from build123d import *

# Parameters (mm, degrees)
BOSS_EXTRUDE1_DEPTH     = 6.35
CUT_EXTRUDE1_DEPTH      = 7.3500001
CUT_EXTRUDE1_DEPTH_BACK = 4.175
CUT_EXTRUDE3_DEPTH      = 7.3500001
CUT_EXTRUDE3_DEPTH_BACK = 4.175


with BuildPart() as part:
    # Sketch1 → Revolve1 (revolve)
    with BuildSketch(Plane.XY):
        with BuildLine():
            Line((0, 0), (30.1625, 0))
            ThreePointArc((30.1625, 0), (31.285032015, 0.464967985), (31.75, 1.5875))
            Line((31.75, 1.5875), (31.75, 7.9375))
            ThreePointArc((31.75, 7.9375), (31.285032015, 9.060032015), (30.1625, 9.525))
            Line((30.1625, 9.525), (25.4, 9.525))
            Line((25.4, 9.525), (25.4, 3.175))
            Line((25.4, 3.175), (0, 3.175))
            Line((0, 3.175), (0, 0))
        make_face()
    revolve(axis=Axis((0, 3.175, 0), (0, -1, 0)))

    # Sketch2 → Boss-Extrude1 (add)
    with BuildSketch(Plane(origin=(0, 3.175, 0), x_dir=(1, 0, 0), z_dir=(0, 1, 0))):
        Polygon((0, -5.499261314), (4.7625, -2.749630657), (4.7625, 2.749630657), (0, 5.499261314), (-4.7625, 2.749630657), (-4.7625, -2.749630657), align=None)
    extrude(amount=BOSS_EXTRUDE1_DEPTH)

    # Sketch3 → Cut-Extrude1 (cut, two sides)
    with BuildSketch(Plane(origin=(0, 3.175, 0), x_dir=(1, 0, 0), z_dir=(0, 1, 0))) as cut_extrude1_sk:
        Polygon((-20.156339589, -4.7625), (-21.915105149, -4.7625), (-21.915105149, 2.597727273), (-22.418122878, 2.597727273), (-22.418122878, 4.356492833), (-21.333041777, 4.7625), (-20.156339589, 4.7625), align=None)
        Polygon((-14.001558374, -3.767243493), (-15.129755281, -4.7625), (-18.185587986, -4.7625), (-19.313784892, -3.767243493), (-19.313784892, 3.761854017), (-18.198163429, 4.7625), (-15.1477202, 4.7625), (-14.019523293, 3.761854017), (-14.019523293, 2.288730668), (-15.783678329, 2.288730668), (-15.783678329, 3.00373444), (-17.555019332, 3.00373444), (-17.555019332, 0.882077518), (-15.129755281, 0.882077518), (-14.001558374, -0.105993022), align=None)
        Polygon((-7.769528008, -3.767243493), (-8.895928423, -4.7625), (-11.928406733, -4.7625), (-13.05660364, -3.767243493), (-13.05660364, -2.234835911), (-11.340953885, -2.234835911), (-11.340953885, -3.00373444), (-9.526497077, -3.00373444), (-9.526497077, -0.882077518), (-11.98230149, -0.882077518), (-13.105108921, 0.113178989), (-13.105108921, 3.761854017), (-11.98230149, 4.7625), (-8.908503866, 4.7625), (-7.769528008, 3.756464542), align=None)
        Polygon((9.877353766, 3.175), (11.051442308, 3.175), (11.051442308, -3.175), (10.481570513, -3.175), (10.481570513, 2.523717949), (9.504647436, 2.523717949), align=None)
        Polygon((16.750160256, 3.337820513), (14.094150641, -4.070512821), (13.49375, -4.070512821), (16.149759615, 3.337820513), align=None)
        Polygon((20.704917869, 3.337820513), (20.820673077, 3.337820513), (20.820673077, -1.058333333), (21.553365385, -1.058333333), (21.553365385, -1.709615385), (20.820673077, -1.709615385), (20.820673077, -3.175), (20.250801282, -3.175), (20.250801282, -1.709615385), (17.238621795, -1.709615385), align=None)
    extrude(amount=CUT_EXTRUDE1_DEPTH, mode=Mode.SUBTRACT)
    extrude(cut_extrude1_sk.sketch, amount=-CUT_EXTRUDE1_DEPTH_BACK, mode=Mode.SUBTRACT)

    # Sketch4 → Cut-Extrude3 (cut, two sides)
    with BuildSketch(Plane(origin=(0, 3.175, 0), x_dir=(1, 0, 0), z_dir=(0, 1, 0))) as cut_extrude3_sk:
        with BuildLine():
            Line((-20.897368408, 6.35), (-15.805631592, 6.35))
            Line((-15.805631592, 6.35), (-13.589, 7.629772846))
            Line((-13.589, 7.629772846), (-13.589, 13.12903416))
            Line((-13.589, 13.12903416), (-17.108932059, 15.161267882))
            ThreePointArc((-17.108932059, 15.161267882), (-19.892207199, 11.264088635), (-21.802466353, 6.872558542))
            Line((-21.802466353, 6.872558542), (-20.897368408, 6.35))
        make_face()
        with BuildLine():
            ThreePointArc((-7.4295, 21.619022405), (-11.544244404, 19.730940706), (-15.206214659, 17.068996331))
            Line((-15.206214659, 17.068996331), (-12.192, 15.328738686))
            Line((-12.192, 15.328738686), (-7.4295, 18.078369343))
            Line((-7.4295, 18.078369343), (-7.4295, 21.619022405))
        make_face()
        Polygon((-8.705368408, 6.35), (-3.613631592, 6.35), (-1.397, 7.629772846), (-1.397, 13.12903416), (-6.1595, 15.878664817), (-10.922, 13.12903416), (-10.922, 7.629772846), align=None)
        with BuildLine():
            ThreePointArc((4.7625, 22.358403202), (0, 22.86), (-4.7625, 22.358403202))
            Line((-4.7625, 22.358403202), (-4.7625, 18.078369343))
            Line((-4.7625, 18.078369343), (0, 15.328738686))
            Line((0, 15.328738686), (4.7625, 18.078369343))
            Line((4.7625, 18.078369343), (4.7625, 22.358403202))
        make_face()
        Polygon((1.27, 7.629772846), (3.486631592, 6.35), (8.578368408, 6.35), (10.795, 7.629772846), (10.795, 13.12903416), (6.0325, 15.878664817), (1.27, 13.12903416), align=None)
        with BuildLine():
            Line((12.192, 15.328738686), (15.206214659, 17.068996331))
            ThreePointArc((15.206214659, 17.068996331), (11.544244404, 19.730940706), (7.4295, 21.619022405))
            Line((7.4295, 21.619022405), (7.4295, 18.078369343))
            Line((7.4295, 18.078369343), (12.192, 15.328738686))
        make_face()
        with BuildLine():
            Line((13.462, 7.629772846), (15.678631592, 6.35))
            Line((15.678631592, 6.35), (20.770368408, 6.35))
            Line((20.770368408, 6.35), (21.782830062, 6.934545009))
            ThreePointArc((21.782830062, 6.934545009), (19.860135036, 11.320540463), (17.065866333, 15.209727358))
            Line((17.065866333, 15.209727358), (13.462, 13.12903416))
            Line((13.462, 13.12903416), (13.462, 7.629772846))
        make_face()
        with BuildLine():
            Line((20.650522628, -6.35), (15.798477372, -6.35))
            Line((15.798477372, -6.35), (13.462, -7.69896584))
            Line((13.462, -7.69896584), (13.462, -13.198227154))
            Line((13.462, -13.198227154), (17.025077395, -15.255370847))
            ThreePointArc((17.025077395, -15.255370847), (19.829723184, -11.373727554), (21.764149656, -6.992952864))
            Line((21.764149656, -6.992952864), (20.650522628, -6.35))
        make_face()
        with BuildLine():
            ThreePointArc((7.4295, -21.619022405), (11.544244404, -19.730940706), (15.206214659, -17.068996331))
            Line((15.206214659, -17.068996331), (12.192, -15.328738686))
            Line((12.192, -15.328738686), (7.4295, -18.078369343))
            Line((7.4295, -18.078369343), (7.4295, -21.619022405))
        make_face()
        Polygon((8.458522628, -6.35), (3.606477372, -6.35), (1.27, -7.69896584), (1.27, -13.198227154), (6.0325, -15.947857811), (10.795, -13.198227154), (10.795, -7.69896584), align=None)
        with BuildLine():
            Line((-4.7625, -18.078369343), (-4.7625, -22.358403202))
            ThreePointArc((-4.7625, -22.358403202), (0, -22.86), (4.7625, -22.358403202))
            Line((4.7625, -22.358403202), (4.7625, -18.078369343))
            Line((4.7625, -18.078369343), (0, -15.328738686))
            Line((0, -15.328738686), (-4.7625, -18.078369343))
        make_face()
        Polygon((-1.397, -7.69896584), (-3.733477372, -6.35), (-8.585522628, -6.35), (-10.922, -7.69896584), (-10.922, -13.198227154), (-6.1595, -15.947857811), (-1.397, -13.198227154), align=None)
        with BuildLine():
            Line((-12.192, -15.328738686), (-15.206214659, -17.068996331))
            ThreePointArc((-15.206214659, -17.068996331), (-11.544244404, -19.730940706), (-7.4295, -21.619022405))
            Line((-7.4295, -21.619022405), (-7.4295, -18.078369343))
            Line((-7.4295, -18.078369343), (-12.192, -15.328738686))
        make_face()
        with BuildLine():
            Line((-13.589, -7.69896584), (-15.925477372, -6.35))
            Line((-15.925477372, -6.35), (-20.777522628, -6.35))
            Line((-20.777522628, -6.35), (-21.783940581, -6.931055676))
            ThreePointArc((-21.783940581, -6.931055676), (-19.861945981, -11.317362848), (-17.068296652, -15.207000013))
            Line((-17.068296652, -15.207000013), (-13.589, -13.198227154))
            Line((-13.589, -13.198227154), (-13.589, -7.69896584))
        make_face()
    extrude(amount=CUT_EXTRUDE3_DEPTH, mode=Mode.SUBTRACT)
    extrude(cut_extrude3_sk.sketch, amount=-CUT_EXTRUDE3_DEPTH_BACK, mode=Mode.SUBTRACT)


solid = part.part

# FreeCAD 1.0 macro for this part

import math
import FreeCAD as App
import Part
import Sketcher
Q = App.Units.Quantity

doc = App.newDocument("Part")
body = doc.addObject("PartDesign::Body", "Body")

# Sketch on XY plane
sketch1 = body.newObject("Sketcher::SketchObject", "Sketch")
sketch1.AttachmentSupport = (doc.getObject("XY_Plane"), [""])
sketch1.MapMode = "FlatFace"
sketch1.addGeometry(Part.LineSegment(App.Vector(0, 0, 0), App.Vector(30.2, 0, 0)), False)
sketch1.addGeometry(Part.ArcOfCircle(Part.Circle(App.Vector(30.2, 1.6, 0), App.Vector(0, 0, 1), 1.6), math.radians(-90), math.radians(0)), False)
sketch1.addGeometry(Part.LineSegment(App.Vector(31.8, 1.6, 0), App.Vector(31.8, 7.9, 0)), False)
sketch1.addGeometry(Part.ArcOfCircle(Part.Circle(App.Vector(30.2, 7.9, 0), App.Vector(0, 0, 1), 1.6), math.radians(0), math.radians(90)), False)
sketch1.addGeometry(Part.LineSegment(App.Vector(30.2, 9.5, 0), App.Vector(25.4, 9.5, 0)), False)
sketch1.addGeometry(Part.LineSegment(App.Vector(25.4, 9.5, 0), App.Vector(25.4, 3.2, 0)), False)
sketch1.addGeometry(Part.LineSegment(App.Vector(25.4, 3.2, 0), App.Vector(0, 3.2, 0)), False)
sketch1.addGeometry(Part.LineSegment(App.Vector(0, 3.2, 0), App.Vector(0, 0, 0)), False)
sketch1.addConstraint(Sketcher.Constraint("Tangent", 0, 2, 1, 1))
sketch1.addConstraint(Sketcher.Constraint("Tangent", 1, 2, 2, 1))
sketch1.addConstraint(Sketcher.Constraint("Tangent", 2, 2, 3, 1))
sketch1.addConstraint(Sketcher.Constraint("Tangent", 3, 2, 4, 1))
sketch1.addConstraint(Sketcher.Constraint("Coincident", 4, 2, 5, 1))
sketch1.addConstraint(Sketcher.Constraint("Coincident", 5, 2, 6, 1))
sketch1.addConstraint(Sketcher.Constraint("Coincident", 6, 2, 7, 1))
sketch1.addConstraint(Sketcher.Constraint("Coincident", 7, 2, 0, 1))
sketch1.addConstraint(Sketcher.Constraint("Horizontal", 0))
sketch1.addConstraint(Sketcher.Constraint("Vertical", 2))
sketch1.addConstraint(Sketcher.Constraint("Horizontal", 4))
sketch1.addConstraint(Sketcher.Constraint("Vertical", 5))
sketch1.addConstraint(Sketcher.Constraint("Horizontal", 6))
sketch1.addConstraint(Sketcher.Constraint("Vertical", 7))
sketch1.addConstraint(Sketcher.Constraint("Coincident", 7, 2, -1, 1))
sketch1.addConstraint(Sketcher.Constraint("Equal", 1, 3))
sketch1.addConstraint(Sketcher.Constraint("Equal", 2, 5))
sketch1.addConstraint(Sketcher.Constraint("DistanceX", 6, 2, 6, 1, Q("1 in")))
sketch1.addConstraint(Sketcher.Constraint("Radius", 1, Q("0.0625 in")))
sketch1.addConstraint(Sketcher.Constraint("DistanceY", 2, 1, 2, 2, Q("0.25 in")))
sketch1.addConstraint(Sketcher.Constraint("DistanceX", 0, 1, 0, 2, Q("1.1875 in")))
revolution = body.newObject("PartDesign::Revolution", "Revolution")
revolution.Profile = sketch1
revolution.ReferenceAxis = (sketch1, ["V_Axis"])
revolution.Angle = 360

# Sketch on XZ plane
sketch2 = body.newObject("Sketcher::SketchObject", "Sketch001")
sketch2.AttachmentSupport = (doc.getObject("XZ_Plane"), [""])
sketch2.MapMode = "FlatFace"
sketch2.AttachmentOffset = App.Placement(App.Vector(0, 0, -0.125 * 25.4), App.Rotation())
sketch2.addGeometry(Part.LineSegment(App.Vector(0, 5, 0), App.Vector(5, 3, 0)), False)
sketch2.addGeometry(Part.LineSegment(App.Vector(5, 3, 0), App.Vector(5, -3, 0)), False)
sketch2.addGeometry(Part.LineSegment(App.Vector(5, -3, 0), App.Vector(0, -5, 0)), False)
sketch2.addGeometry(Part.LineSegment(App.Vector(0, -5, 0), App.Vector(-5, -3, 0)), False)
sketch2.addGeometry(Part.LineSegment(App.Vector(-5, -3, 0), App.Vector(-5, 3, 0)), False)
sketch2.addGeometry(Part.LineSegment(App.Vector(-5, 3, 0), App.Vector(0, 5, 0)), False)
sketch2.addConstraint(Sketcher.Constraint("Coincident", 0, 2, 1, 1))
sketch2.addConstraint(Sketcher.Constraint("Coincident", 1, 2, 2, 1))
sketch2.addConstraint(Sketcher.Constraint("Coincident", 2, 2, 3, 1))
sketch2.addConstraint(Sketcher.Constraint("Coincident", 3, 2, 4, 1))
sketch2.addConstraint(Sketcher.Constraint("Coincident", 4, 2, 5, 1))
sketch2.addConstraint(Sketcher.Constraint("Coincident", 5, 2, 0, 1))
sketch2.addConstraint(Sketcher.Constraint("Vertical", 1))
sketch2.addConstraint(Sketcher.Constraint("Vertical", 4))
sketch2.addConstraint(Sketcher.Constraint("Symmetric", 0, 2, 3, 2, -1, 1))
sketch2.addConstraint(Sketcher.Constraint("Symmetric", 2, 2, 5, 2, -1, 1))
sketch2.addConstraint(Sketcher.Constraint("PointOnObject", 2, 2, -2))
sketch2.addConstraint(Sketcher.Constraint("Parallel", 2, 5))
sketch2.addConstraint(Sketcher.Constraint("Horizontal", 1, 2, 3, 2))
sketch2.addConstraint(Sketcher.Constraint("Angle", 0, Q("-30 deg")))
sketch2.addConstraint(Sketcher.Constraint("DistanceX", -1, 1, 0, 2, Q("0.1875 in")))
sketch2.addConstraint(Sketcher.Constraint("DistanceY", 1, 2, 1, 1, Q("5.499261 mm")))
pad1 = body.newObject("PartDesign::Pad", "Pad")
pad1.Profile = sketch2
pad1.Length = Q("0.25 in")
pad1.Reversed = True

# Sketch on XZ plane
sketch3 = body.newObject("Sketcher::SketchObject", "Sketch002")
sketch3.AttachmentSupport = (doc.getObject("XZ_Plane"), [""])
sketch3.MapMode = "FlatFace"
sketch3.AttachmentOffset = App.Placement(App.Vector(0, 0, -0.125 * 25.4), App.Rotation())
sketch3.addGeometry(Part.LineSegment(App.Vector(-21.92, 4.76, 0), App.Vector(-20.16, 4.76, 0)), False)
sketch3.addGeometry(Part.LineSegment(App.Vector(-20.16, 4.76, 0), App.Vector(-20.16, -4.76, 0)), False)
sketch3.addGeometry(Part.LineSegment(App.Vector(-20.16, -4.76, 0), App.Vector(-21.33, -4.76, 0)), False)
sketch3.addGeometry(Part.LineSegment(App.Vector(-21.33, -4.76, 0), App.Vector(-22.42, -4.36, 0)), False)
sketch3.addGeometry(Part.LineSegment(App.Vector(-22.42, -4.36, 0), App.Vector(-22.42, -2.6, 0)), False)
sketch3.addGeometry(Part.LineSegment(App.Vector(-22.42, -2.6, 0), App.Vector(-21.92, -2.6, 0)), False)
sketch3.addGeometry(Part.LineSegment(App.Vector(-21.92, -2.6, 0), App.Vector(-21.92, 4.76, 0)), False)
sketch3.addGeometry(Part.LineSegment(App.Vector(-15.13, 4.76, 0), App.Vector(-14, 3.77, 0)), False)
sketch3.addGeometry(Part.LineSegment(App.Vector(-14, 3.77, 0), App.Vector(-14, 0.11, 0)), False)
sketch3.addGeometry(Part.LineSegment(App.Vector(-14, 0.11, 0), App.Vector(-15.13, -0.88, 0)), False)
sketch3.addGeometry(Part.LineSegment(App.Vector(-15.13, -0.88, 0), App.Vector(-17.56, -0.88, 0)), False)
sketch3.addGeometry(Part.LineSegment(App.Vector(-17.56, -0.88, 0), App.Vector(-17.56, -3, 0)), False)
sketch3.addGeometry(Part.LineSegment(App.Vector(-17.56, -3, 0), App.Vector(-15.78, -3, 0)), False)
sketch3.addGeometry(Part.LineSegment(App.Vector(-15.78, -3, 0), App.Vector(-15.78, -2.29, 0)), False)
sketch3.addGeometry(Part.LineSegment(App.Vector(-15.78, -2.29, 0), App.Vector(-14.02, -2.29, 0)), False)
sketch3.addGeometry(Part.LineSegment(App.Vector(-14.02, -2.29, 0), App.Vector(-14.02, -3.76, 0)), False)
sketch3.addGeometry(Part.LineSegment(App.Vector(-14.02, -3.76, 0), App.Vector(-15.15, -4.76, 0)), False)
sketch3.addGeometry(Part.LineSegment(App.Vector(-15.15, -4.76, 0), App.Vector(-18.2, -4.76, 0)), False)
sketch3.addGeometry(Part.LineSegment(App.Vector(-18.2, -4.76, 0), App.Vector(-19.31, -3.76, 0)), False)
sketch3.addGeometry(Part.LineSegment(App.Vector(-19.31, -3.76, 0), App.Vector(-19.31, 3.77, 0)), False)
sketch3.addGeometry(Part.LineSegment(App.Vector(-19.31, 3.77, 0), App.Vector(-18.19, 4.76, 0)), False)
sketch3.addGeometry(Part.LineSegment(App.Vector(-18.19, 4.76, 0), App.Vector(-15.13, 4.76, 0)), False)
sketch3.addGeometry(Part.LineSegment(App.Vector(-8.9, 4.76, 0), App.Vector(-7.77, 3.77, 0)), False)
sketch3.addGeometry(Part.LineSegment(App.Vector(-7.77, 3.77, 0), App.Vector(-7.77, -3.76, 0)), False)
sketch3.addGeometry(Part.LineSegment(App.Vector(-7.77, -3.76, 0), App.Vector(-8.91, -4.76, 0)), False)
sketch3.addGeometry(Part.LineSegment(App.Vector(-8.91, -4.76, 0), App.Vector(-11.98, -4.76, 0)), False)
sketch3.addGeometry(Part.LineSegment(App.Vector(-11.98, -4.76, 0), App.Vector(-13.11, -3.76, 0)), False)
sketch3.addGeometry(Part.LineSegment(App.Vector(-13.11, -3.76, 0), App.Vector(-13.11, -0.11, 0)), False)
sketch3.addGeometry(Part.LineSegment(App.Vector(-13.11, -0.11, 0), App.Vector(-11.98, 0.88, 0)), False)
sketch3.addGeometry(Part.LineSegment(App.Vector(-11.98, 0.88, 0), App.Vector(-9.53, 0.88, 0)), False)
sketch3.addGeometry(Part.LineSegment(App.Vector(-9.53, 0.88, 0), App.Vector(-9.53, 3, 0)), False)
sketch3.addGeometry(Part.LineSegment(App.Vector(-9.53, 3, 0), App.Vector(-11.34, 3, 0)), False)
sketch3.addGeometry(Part.LineSegment(App.Vector(-11.34, 3, 0), App.Vector(-11.34, 2.23, 0)), False)
sketch3.addGeometry(Part.LineSegment(App.Vector(-11.34, 2.23, 0), App.Vector(-13.06, 2.23, 0)), False)
sketch3.addGeometry(Part.LineSegment(App.Vector(-13.06, 2.23, 0), App.Vector(-13.06, 3.77, 0)), False)
sketch3.addGeometry(Part.LineSegment(App.Vector(-13.06, 3.77, 0), App.Vector(-11.93, 4.76, 0)), False)
sketch3.addGeometry(Part.LineSegment(App.Vector(-11.93, 4.76, 0), App.Vector(-8.9, 4.76, 0)), False)
sketch3.addGeometry(Part.LineSegment(App.Vector(11.05, -3.17, 0), App.Vector(9.88, -3.17, 0)), False)
sketch3.addGeometry(Part.LineSegment(App.Vector(9.88, -3.17, 0), App.Vector(9.5, -2.52, 0)), False)
sketch3.addGeometry(Part.LineSegment(App.Vector(9.5, -2.52, 0), App.Vector(10.48, -2.52, 0)), False)
sketch3.addGeometry(Part.LineSegment(App.Vector(10.48, -2.52, 0), App.Vector(10.48, 3.17, 0)), False)
sketch3.addGeometry(Part.LineSegment(App.Vector(10.48, 3.17, 0), App.Vector(11.05, 3.17, 0)), False)
sketch3.addGeometry(Part.LineSegment(App.Vector(11.05, 3.17, 0), App.Vector(11.05, -3.17, 0)), False)
sketch3.addGeometry(Part.LineSegment(App.Vector(14.09, 4.07, 0), App.Vector(16.75, -3.34, 0)), False)
sketch3.addGeometry(Part.LineSegment(App.Vector(16.75, -3.34, 0), App.Vector(16.15, -3.34, 0)), False)
sketch3.addGeometry(Part.LineSegment(App.Vector(16.15, -3.34, 0), App.Vector(13.49, 4.07, 0)), False)
sketch3.addGeometry(Part.LineSegment(App.Vector(13.49, 4.07, 0), App.Vector(14.09, 4.07, 0)), False)
sketch3.addGeometry(Part.LineSegment(App.Vector(20.82, -3.34, 0), App.Vector(20.7, -3.34, 0)), False)
sketch3.addGeometry(Part.LineSegment(App.Vector(20.7, -3.34, 0), App.Vector(17.24, 1.71, 0)), False)
sketch3.addGeometry(Part.LineSegment(App.Vector(17.24, 1.71, 0), App.Vector(20.25, 1.71, 0)), False)
sketch3.addGeometry(Part.LineSegment(App.Vector(20.25, 1.71, 0), App.Vector(20.25, 3.17, 0)), False)
sketch3.addGeometry(Part.LineSegment(App.Vector(20.25, 3.17, 0), App.Vector(20.82, 3.17, 0)), False)
sketch3.addGeometry(Part.LineSegment(App.Vector(20.82, 3.17, 0), App.Vector(20.82, 1.71, 0)), False)
sketch3.addGeometry(Part.LineSegment(App.Vector(20.82, 1.71, 0), App.Vector(21.55, 1.71, 0)), False)
sketch3.addGeometry(Part.LineSegment(App.Vector(21.55, 1.71, 0), App.Vector(21.55, 1.06, 0)), False)
sketch3.addGeometry(Part.LineSegment(App.Vector(21.55, 1.06, 0), App.Vector(20.82, 1.06, 0)), False)
sketch3.addGeometry(Part.LineSegment(App.Vector(20.82, 1.06, 0), App.Vector(20.82, -3.34, 0)), False)
sketch3.addConstraint(Sketcher.Constraint("Coincident", 0, 2, 1, 1))
sketch3.addConstraint(Sketcher.Constraint("Coincident", 1, 2, 2, 1))
sketch3.addConstraint(Sketcher.Constraint("Coincident", 2, 2, 3, 1))
sketch3.addConstraint(Sketcher.Constraint("Coincident", 3, 2, 4, 1))
sketch3.addConstraint(Sketcher.Constraint("Coincident", 4, 2, 5, 1))
sketch3.addConstraint(Sketcher.Constraint("Coincident", 5, 2, 6, 1))
sketch3.addConstraint(Sketcher.Constraint("Coincident", 6, 2, 0, 1))
sketch3.addConstraint(Sketcher.Constraint("Coincident", 7, 2, 8, 1))
sketch3.addConstraint(Sketcher.Constraint("Coincident", 8, 2, 9, 1))
sketch3.addConstraint(Sketcher.Constraint("Coincident", 9, 2, 10, 1))
sketch3.addConstraint(Sketcher.Constraint("Coincident", 10, 2, 11, 1))
sketch3.addConstraint(Sketcher.Constraint("Coincident", 11, 2, 12, 1))
sketch3.addConstraint(Sketcher.Constraint("Coincident", 12, 2, 13, 1))
sketch3.addConstraint(Sketcher.Constraint("Coincident", 13, 2, 14, 1))
sketch3.addConstraint(Sketcher.Constraint("Coincident", 14, 2, 15, 1))
sketch3.addConstraint(Sketcher.Constraint("Coincident", 15, 2, 16, 1))
sketch3.addConstraint(Sketcher.Constraint("Coincident", 16, 2, 17, 1))
sketch3.addConstraint(Sketcher.Constraint("Coincident", 17, 2, 18, 1))
sketch3.addConstraint(Sketcher.Constraint("Coincident", 18, 2, 19, 1))
sketch3.addConstraint(Sketcher.Constraint("Coincident", 19, 2, 20, 1))
sketch3.addConstraint(Sketcher.Constraint("Coincident", 20, 2, 21, 1))
sketch3.addConstraint(Sketcher.Constraint("Coincident", 21, 2, 7, 1))
sketch3.addConstraint(Sketcher.Constraint("Coincident", 22, 2, 23, 1))
sketch3.addConstraint(Sketcher.Constraint("Coincident", 23, 2, 24, 1))
sketch3.addConstraint(Sketcher.Constraint("Coincident", 24, 2, 25, 1))
sketch3.addConstraint(Sketcher.Constraint("Coincident", 25, 2, 26, 1))
sketch3.addConstraint(Sketcher.Constraint("Coincident", 26, 2, 27, 1))
sketch3.addConstraint(Sketcher.Constraint("Coincident", 27, 2, 28, 1))
sketch3.addConstraint(Sketcher.Constraint("Coincident", 28, 2, 29, 1))
sketch3.addConstraint(Sketcher.Constraint("Coincident", 29, 2, 30, 1))
sketch3.addConstraint(Sketcher.Constraint("Coincident", 30, 2, 31, 1))
sketch3.addConstraint(Sketcher.Constraint("Coincident", 31, 2, 32, 1))
sketch3.addConstraint(Sketcher.Constraint("Coincident", 32, 2, 33, 1))
sketch3.addConstraint(Sketcher.Constraint("Coincident", 33, 2, 34, 1))
sketch3.addConstraint(Sketcher.Constraint("Coincident", 34, 2, 35, 1))
sketch3.addConstraint(Sketcher.Constraint("Coincident", 35, 2, 36, 1))
sketch3.addConstraint(Sketcher.Constraint("Coincident", 36, 2, 22, 1))
sketch3.addConstraint(Sketcher.Constraint("Coincident", 37, 2, 38, 1))
sketch3.addConstraint(Sketcher.Constraint("Coincident", 38, 2, 39, 1))
sketch3.addConstraint(Sketcher.Constraint("Coincident", 39, 2, 40, 1))
sketch3.addConstraint(Sketcher.Constraint("Coincident", 40, 2, 41, 1))
sketch3.addConstraint(Sketcher.Constraint("Coincident", 41, 2, 42, 1))
sketch3.addConstraint(Sketcher.Constraint("Coincident", 42, 2, 37, 1))
sketch3.addConstraint(Sketcher.Constraint("Coincident", 43, 2, 44, 1))
sketch3.addConstraint(Sketcher.Constraint("Coincident", 44, 2, 45, 1))
sketch3.addConstraint(Sketcher.Constraint("Coincident", 45, 2, 46, 1))
sketch3.addConstraint(Sketcher.Constraint("Coincident", 46, 2, 43, 1))
sketch3.addConstraint(Sketcher.Constraint("Coincident", 47, 2, 48, 1))
sketch3.addConstraint(Sketcher.Constraint("Coincident", 48, 2, 49, 1))
sketch3.addConstraint(Sketcher.Constraint("Coincident", 49, 2, 50, 1))
sketch3.addConstraint(Sketcher.Constraint("Coincident", 50, 2, 51, 1))
sketch3.addConstraint(Sketcher.Constraint("Coincident", 51, 2, 52, 1))
sketch3.addConstraint(Sketcher.Constraint("Coincident", 52, 2, 53, 1))
sketch3.addConstraint(Sketcher.Constraint("Coincident", 53, 2, 54, 1))
sketch3.addConstraint(Sketcher.Constraint("Coincident", 54, 2, 55, 1))
sketch3.addConstraint(Sketcher.Constraint("Coincident", 55, 2, 56, 1))
sketch3.addConstraint(Sketcher.Constraint("Coincident", 56, 2, 47, 1))
sketch3.addConstraint(Sketcher.Constraint("Horizontal", 0))
sketch3.addConstraint(Sketcher.Constraint("Vertical", 1))
sketch3.addConstraint(Sketcher.Constraint("Horizontal", 2))
sketch3.addConstraint(Sketcher.Constraint("Vertical", 4))
sketch3.addConstraint(Sketcher.Constraint("Horizontal", 5))
sketch3.addConstraint(Sketcher.Constraint("Vertical", 6))
sketch3.addConstraint(Sketcher.Constraint("Vertical", 8))
sketch3.addConstraint(Sketcher.Constraint("Horizontal", 10))
sketch3.addConstraint(Sketcher.Constraint("Vertical", 11))
sketch3.addConstraint(Sketcher.Constraint("Horizontal", 12))
sketch3.addConstraint(Sketcher.Constraint("Vertical", 13))
sketch3.addConstraint(Sketcher.Constraint("Horizontal", 14))
sketch3.addConstraint(Sketcher.Constraint("Vertical", 15))
sketch3.addConstraint(Sketcher.Constraint("Horizontal", 17))
sketch3.addConstraint(Sketcher.Constraint("Vertical", 19))
sketch3.addConstraint(Sketcher.Constraint("Horizontal", 21))
sketch3.addConstraint(Sketcher.Constraint("Vertical", 23))
sketch3.addConstraint(Sketcher.Constraint("Horizontal", 25))
sketch3.addConstraint(Sketcher.Constraint("Vertical", 27))
sketch3.addConstraint(Sketcher.Constraint("Horizontal", 29))
sketch3.addConstraint(Sketcher.Constraint("Vertical", 30))
sketch3.addConstraint(Sketcher.Constraint("Horizontal", 31))
sketch3.addConstraint(Sketcher.Constraint("Vertical", 32))
sketch3.addConstraint(Sketcher.Constraint("Horizontal", 33))
sketch3.addConstraint(Sketcher.Constraint("Vertical", 34))
sketch3.addConstraint(Sketcher.Constraint("Horizontal", 36))
sketch3.addConstraint(Sketcher.Constraint("Horizontal", 37))
sketch3.addConstraint(Sketcher.Constraint("Horizontal", 39))
sketch3.addConstraint(Sketcher.Constraint("Vertical", 40))
sketch3.addConstraint(Sketcher.Constraint("Horizontal", 41))
sketch3.addConstraint(Sketcher.Constraint("Vertical", 42))
sketch3.addConstraint(Sketcher.Constraint("Horizontal", 44))
sketch3.addConstraint(Sketcher.Constraint("Horizontal", 46))
sketch3.addConstraint(Sketcher.Constraint("Horizontal", 47))
sketch3.addConstraint(Sketcher.Constraint("Horizontal", 49))
sketch3.addConstraint(Sketcher.Constraint("Vertical", 50))
sketch3.addConstraint(Sketcher.Constraint("Horizontal", 51))
sketch3.addConstraint(Sketcher.Constraint("Vertical", 52))
sketch3.addConstraint(Sketcher.Constraint("Horizontal", 53))
sketch3.addConstraint(Sketcher.Constraint("Vertical", 54))
sketch3.addConstraint(Sketcher.Constraint("Horizontal", 55))
sketch3.addConstraint(Sketcher.Constraint("Vertical", 56))
sketch3.addConstraint(Sketcher.Constraint("Parallel", 20, 35))
sketch3.addConstraint(Sketcher.Constraint("Parallel", 43, 45))
sketch3.addConstraint(Sketcher.Constraint("Horizontal", 2, 2, 16, 2))
sketch3.addConstraint(Sketcher.Constraint("Horizontal", 15, 2, 18, 2))
sketch3.addConstraint(Sketcher.Constraint("Horizontal", 7, 2, 19, 2))
sketch3.addConstraint(Sketcher.Constraint("Horizontal", 6, 2, 20, 2))
sketch3.addConstraint(Sketcher.Constraint("Horizontal", 19, 2, 22, 2))
sketch3.addConstraint(Sketcher.Constraint("Horizontal", 17, 2, 24, 2))
sketch3.addConstraint(Sketcher.Constraint("Horizontal", 18, 2, 26, 2))
sketch3.addConstraint(Sketcher.Constraint("Horizontal", 22, 2, 34, 2))
sketch3.addConstraint(Sketcher.Constraint("Horizontal", 21, 2, 35, 2))
sketch3.addConstraint(Sketcher.Constraint("Horizontal", 44, 2, 47, 2))
sketch3.addConstraint(Sketcher.Constraint("Horizontal", 41, 2, 50, 2))
sketch3.addConstraint(Sketcher.Constraint("Horizontal", 49, 2, 52, 2))
sketch3.addConstraint(Sketcher.Constraint("Vertical", 9, 2, 21, 2))
sketch3.addConstraint(Sketcher.Constraint("Vertical", 25, 2, 28, 2))
sketch3.addConstraint(Sketcher.Constraint("Vertical", 52, 2, 55, 2))
sketch3.addConstraint(Sketcher.Constraint("Equal", 41, 51))
sketch3.addConstraint(Sketcher.Constraint("Equal", 0, 4))
sketch3.addConstraint(Sketcher.Constraint("Equal", 11, 30))
sketch3.addConstraint(Sketcher.Constraint("Equal", 7, 20))
sketch3.addConstraint(Sketcher.Constraint("DistanceY", 42, 2, 42, 1, Q("0.25 in")))
sketch3.addConstraint(Sketcher.Constraint("DistanceY", 1, 2, 1, 1, Q("0.375 in")))
sketch3.addConstraint(Sketcher.Constraint("DistanceY", -1, 1, 0, 2, Q("0.1875 in")))
sketch3.addConstraint(Sketcher.Constraint("DistanceY", 37, 2, -1, 1, Q("0.125 in")))
sketch3.addConstraint(Sketcher.Constraint("DistanceX", -1, 1, 45, 2, Q("0.53125 in")))
sketch3.addConstraint(Sketcher.Constraint("DistanceX", 44, 2, 44, 1, Q("0.600401 mm")))
sketch3.addConstraint(Sketcher.Constraint("DistanceY", 32, 2, 32, 1, Q("0.768899 mm")))
sketch3.addConstraint(Sketcher.Constraint("DistanceX", 10, 2, 8, 2, Q("0.1399 in")))
sketch3.addConstraint(Sketcher.Constraint("Distance", 22, Q("1.503101 mm")))
sketch3.addConstraint(Sketcher.Constraint("DistanceX", 12, 1, 12, 2, Q("1.771341 mm")))
sketch3.addConstraint(Sketcher.Constraint("DistanceX", 33, 2, 33, 1, Q("1.71565 mm")))
sketch3.addConstraint(Sketcher.Constraint("DistanceX", 36, 1, 36, 2, Q("3.032478 mm")))
sketch3.addConstraint(Sketcher.Constraint("DistanceX", 37, 2, 37, 1, Q("1.174089 mm")))
sketch3.addConstraint(Sketcher.Constraint("DistanceX", 41, 1, 41, 2, Q("0.569872 mm")))
sketch3.addConstraint(Sketcher.Constraint("DistanceX", 49, 1, 49, 2, Q("3.012179 mm")))
sketch3.addConstraint(Sketcher.Constraint("DistanceY", 8, 2, 8, 1, Q("3.66125 mm")))
sketch3.addConstraint(Sketcher.Constraint("DistanceY", 23, 2, 23, 1, Q("7.523708 mm")))
sketch3.addConstraint(Sketcher.Constraint("DistanceX", 25, 2, -1, 1, Q("11.982301 mm")))
sketch3.addConstraint(Sketcher.Constraint("DistanceX", -1, 1, 49, 2, Q("20.250801 mm")))
sketch3.addConstraint(Sketcher.Constraint("DistanceX", 11, 2, 16, 2, Q("2.407299 mm")))
sketch3.addConstraint(Sketcher.Constraint("DistanceY", 9, 2, 27, 2, Q("0.768899 mm")))
sketch3.addConstraint(Sketcher.Constraint("DistanceX", 36, 2, 22, 2, Q("1.1264 mm")))
sketch3.addConstraint(Sketcher.Constraint("DistanceX", 23, 2, 39, 2, Q("18.251099 mm")))
sketch3.addConstraint(Sketcher.Constraint("Distance", 16, Q("1.508019 mm")))
sketch3.addConstraint(Sketcher.Constraint("Distance", 26, Q("1.503991 mm")))
sketch3.addConstraint(Sketcher.Constraint("Distance", 28, Q("1.500411 mm")))
sketch3.addConstraint(Sketcher.Constraint("DistanceX", 0, 1, 0, 2, Q("1.758766 mm")))
sketch3.addConstraint(Sketcher.Constraint("DistanceX", 2, 2, 2, 1, Q("1.176702 mm")))
sketch3.addConstraint(Sketcher.Constraint("DistanceX", 5, 1, 5, 2, Q("0.503018 mm")))
sketch3.addConstraint(Sketcher.Constraint("DistanceX", 10, 2, 10, 1, Q("2.425264 mm")))
sketch3.addConstraint(Sketcher.Constraint("DistanceX", 14, 1, 14, 2, Q("1.764155 mm")))
sketch3.addConstraint(Sketcher.Constraint("DistanceX", 17, 2, 17, 1, Q("3.050443 mm")))
sketch3.addConstraint(Sketcher.Constraint("DistanceX", 21, 1, 21, 2, Q("3.055833 mm")))
sketch3.addConstraint(Sketcher.Constraint("DistanceX", 25, 2, 25, 1, Q("3.073798 mm")))
sketch3.addConstraint(Sketcher.Constraint("DistanceX", 29, 1, 29, 2, Q("2.455804 mm")))
sketch3.addConstraint(Sketcher.Constraint("DistanceX", 31, 2, 31, 1, Q("1.814457 mm")))
sketch3.addConstraint(Sketcher.Constraint("DistanceX", 39, 1, 39, 2, Q("0.976923 mm")))
sketch3.addConstraint(Sketcher.Constraint("DistanceX", 47, 2, 47, 1, Q("0.115755 mm")))
sketch3.addConstraint(Sketcher.Constraint("DistanceX", 53, 1, 53, 2, Q("0.732692 mm")))
sketch3.addConstraint(Sketcher.Constraint("DistanceY", 6, 1, 6, 2, Q("7.360227 mm")))
sketch3.addConstraint(Sketcher.Constraint("DistanceY", 11, 2, 11, 1, Q("2.121657 mm")))
sketch3.addConstraint(Sketcher.Constraint("DistanceY", 13, 1, 13, 2, Q("0.715004 mm")))
sketch3.addConstraint(Sketcher.Constraint("DistanceY", 15, 2, 15, 1, Q("1.473123 mm")))
sketch3.addConstraint(Sketcher.Constraint("DistanceY", 40, 1, 40, 2, Q("5.698718 mm")))
sketch3.addConstraint(Sketcher.Constraint("DistanceY", 50, 1, 50, 2, Q("1.465385 mm")))
sketch3.addConstraint(Sketcher.Constraint("DistanceY", 54, 2, 54, 1, Q("0.651282 mm")))
sketch3.addConstraint(Sketcher.Constraint("DistanceY", 56, 2, 56, 1, Q("4.396154 mm")))
sketch3.addConstraint(Sketcher.Constraint("DistanceX", 0, 2, -1, 1, Q("20.15634 mm")))
sketch3.addConstraint(Sketcher.Constraint("DistanceX", 7, 2, -1, 1, Q("14.001558 mm")))
sketch3.addConstraint(Sketcher.Constraint("DistanceX", -1, 1, 43, 2, Q("16.75016 mm")))
sketch3.addConstraint(Sketcher.Constraint("DistanceY", 39, 2, 45, 2, Q("6.594231 mm")))
pocket1 = body.newObject("PartDesign::Pocket", "Pocket")
pocket1.Profile = sketch3
pocket1.Type = "ThroughAll"
pocket1.Midplane = True

# Sketch on XZ plane
sketch4 = body.newObject("Sketcher::SketchObject", "Sketch003")
sketch4.AttachmentSupport = (doc.getObject("XZ_Plane"), [""])
sketch4.MapMode = "FlatFace"
sketch4.AttachmentOffset = App.Placement(App.Vector(0, 0, -0.125 * 25.4), App.Rotation())
sketch4.addGeometry(Part.LineSegment(App.Vector(-20.9, -6.3, 0), App.Vector(-15.8, -6.3, 0)), False)
sketch4.addGeometry(Part.LineSegment(App.Vector(-15.8, -6.3, 0), App.Vector(-13.6, -7.6, 0)), False)
sketch4.addGeometry(Part.LineSegment(App.Vector(-13.6, -7.6, 0), App.Vector(-13.6, -13.1, 0)), False)
sketch4.addGeometry(Part.LineSegment(App.Vector(-13.6, -13.1, 0), App.Vector(-17.1, -15.2, 0)), False)
sketch4.addGeometry(Part.ArcOfCircle(Part.Circle(App.Vector(0, 0, 0), App.Vector(0, 0, 1), 22.9), math.radians(-163), math.radians(-138)), False)
sketch4.addGeometry(Part.LineSegment(App.Vector(-21.8, -6.9, 0), App.Vector(-20.9, -6.3, 0)), False)
sketch4.addGeometry(Part.ArcOfCircle(Part.Circle(App.Vector(0, 0, 0), App.Vector(0, 0, 1), 22.9), math.radians(-132), math.radians(-109)), False)
sketch4.addGeometry(Part.LineSegment(App.Vector(-15.2, -17.1, 0), App.Vector(-12.2, -15.3, 0)), False)
sketch4.addGeometry(Part.LineSegment(App.Vector(-12.2, -15.3, 0), App.Vector(-7.4, -18.1, 0)), False)
sketch4.addGeometry(Part.LineSegment(App.Vector(-7.4, -18.1, 0), App.Vector(-7.4, -21.6, 0)), False)
sketch4.addGeometry(Part.LineSegment(App.Vector(-8.7, -6.3, 0), App.Vector(-3.6, -6.3, 0)), False)
sketch4.addGeometry(Part.LineSegment(App.Vector(-3.6, -6.3, 0), App.Vector(-1.4, -7.6, 0)), False)
sketch4.addGeometry(Part.LineSegment(App.Vector(-1.4, -7.6, 0), App.Vector(-1.4, -13.1, 0)), False)
sketch4.addGeometry(Part.LineSegment(App.Vector(-1.4, -13.1, 0), App.Vector(-6.2, -15.9, 0)), False)
sketch4.addGeometry(Part.LineSegment(App.Vector(-6.2, -15.9, 0), App.Vector(-10.9, -13.1, 0)), False)
sketch4.addGeometry(Part.LineSegment(App.Vector(-10.9, -13.1, 0), App.Vector(-10.9, -7.6, 0)), False)
sketch4.addGeometry(Part.LineSegment(App.Vector(-10.9, -7.6, 0), App.Vector(-8.7, -6.3, 0)), False)
sketch4.addGeometry(Part.ArcOfCircle(Part.Circle(App.Vector(0, 0, 0), App.Vector(0, 0, 1), 22.9), math.radians(-102), math.radians(-78)), False)
sketch4.addGeometry(Part.LineSegment(App.Vector(-4.8, -22.4, 0), App.Vector(-4.8, -18.1, 0)), False)
sketch4.addGeometry(Part.LineSegment(App.Vector(-4.8, -18.1, 0), App.Vector(0, -15.3, 0)), False)
sketch4.addGeometry(Part.LineSegment(App.Vector(0, -15.3, 0), App.Vector(4.8, -18.1, 0)), False)
sketch4.addGeometry(Part.LineSegment(App.Vector(4.8, -18.1, 0), App.Vector(4.8, -22.4, 0)), False)
sketch4.addGeometry(Part.LineSegment(App.Vector(1.3, -7.6, 0), App.Vector(3.5, -6.3, 0)), False)
sketch4.addGeometry(Part.LineSegment(App.Vector(3.5, -6.3, 0), App.Vector(8.6, -6.3, 0)), False)
sketch4.addGeometry(Part.LineSegment(App.Vector(8.6, -6.3, 0), App.Vector(10.8, -7.6, 0)), False)
sketch4.addGeometry(Part.LineSegment(App.Vector(10.8, -7.6, 0), App.Vector(10.8, -13.1, 0)), False)
sketch4.addGeometry(Part.LineSegment(App.Vector(10.8, -13.1, 0), App.Vector(6, -15.9, 0)), False)
sketch4.addGeometry(Part.LineSegment(App.Vector(6, -15.9, 0), App.Vector(1.3, -13.1, 0)), False)
sketch4.addGeometry(Part.LineSegment(App.Vector(1.3, -13.1, 0), App.Vector(1.3, -7.6, 0)), False)
sketch4.addGeometry(Part.LineSegment(App.Vector(12.2, -15.3, 0), App.Vector(15.2, -17.1, 0)), False)
sketch4.addGeometry(Part.ArcOfCircle(Part.Circle(App.Vector(0, 0, 0), App.Vector(0, 0, 1), 22.9), math.radians(-71), math.radians(-48)), False)
sketch4.addGeometry(Part.LineSegment(App.Vector(7.4, -21.6, 0), App.Vector(7.4, -18.1, 0)), False)
sketch4.addGeometry(Part.LineSegment(App.Vector(7.4, -18.1, 0), App.Vector(12.2, -15.3, 0)), False)
sketch4.addGeometry(Part.LineSegment(App.Vector(13.5, -7.6, 0), App.Vector(15.7, -6.3, 0)), False)
sketch4.addGeometry(Part.LineSegment(App.Vector(15.7, -6.3, 0), App.Vector(20.8, -6.3, 0)), False)
sketch4.addGeometry(Part.LineSegment(App.Vector(20.8, -6.3, 0), App.Vector(21.8, -6.9, 0)), False)
sketch4.addGeometry(Part.ArcOfCircle(Part.Circle(App.Vector(0, 0, 0), App.Vector(0, 0, 1), 22.9), math.radians(-42), math.radians(-18)), False)
sketch4.addGeometry(Part.LineSegment(App.Vector(17.1, -15.2, 0), App.Vector(13.5, -13.1, 0)), False)
sketch4.addGeometry(Part.LineSegment(App.Vector(13.5, -13.1, 0), App.Vector(13.5, -7.6, 0)), False)
sketch4.addGeometry(Part.LineSegment(App.Vector(20.7, 6.3, 0), App.Vector(15.8, 6.3, 0)), False)
sketch4.addGeometry(Part.LineSegment(App.Vector(15.8, 6.3, 0), App.Vector(13.5, 7.7, 0)), False)
sketch4.addGeometry(Part.LineSegment(App.Vector(13.5, 7.7, 0), App.Vector(13.5, 13.2, 0)), False)
sketch4.addGeometry(Part.LineSegment(App.Vector(13.5, 13.2, 0), App.Vector(17, 15.3, 0)), False)
sketch4.addGeometry(Part.ArcOfCircle(Part.Circle(App.Vector(0, 0, 0), App.Vector(0, 0, 1), 22.9), math.radians(18), math.radians(42)), False)
sketch4.addGeometry(Part.LineSegment(App.Vector(21.8, 7, 0), App.Vector(20.7, 6.3, 0)), False)
sketch4.addGeometry(Part.ArcOfCircle(Part.Circle(App.Vector(0, 0, 0), App.Vector(0, 0, 1), 22.9), math.radians(48), math.radians(71)), False)
sketch4.addGeometry(Part.LineSegment(App.Vector(15.2, 17.1, 0), App.Vector(12.2, 15.3, 0)), False)
sketch4.addGeometry(Part.LineSegment(App.Vector(12.2, 15.3, 0), App.Vector(7.4, 18.1, 0)), False)
sketch4.addGeometry(Part.LineSegment(App.Vector(7.4, 18.1, 0), App.Vector(7.4, 21.6, 0)), False)
sketch4.addGeometry(Part.LineSegment(App.Vector(8.5, 6.3, 0), App.Vector(3.6, 6.3, 0)), False)
sketch4.addGeometry(Part.LineSegment(App.Vector(3.6, 6.3, 0), App.Vector(1.3, 7.7, 0)), False)
sketch4.addGeometry(Part.LineSegment(App.Vector(1.3, 7.7, 0), App.Vector(1.3, 13.2, 0)), False)
sketch4.addGeometry(Part.LineSegment(App.Vector(1.3, 13.2, 0), App.Vector(6, 15.9, 0)), False)
sketch4.addGeometry(Part.LineSegment(App.Vector(6, 15.9, 0), App.Vector(10.8, 13.2, 0)), False)
sketch4.addGeometry(Part.LineSegment(App.Vector(10.8, 13.2, 0), App.Vector(10.8, 7.7, 0)), False)
sketch4.addGeometry(Part.LineSegment(App.Vector(10.8, 7.7, 0), App.Vector(8.5, 6.3, 0)), False)
sketch4.addGeometry(Part.LineSegment(App.Vector(-4.8, 18.1, 0), App.Vector(-4.8, 22.4, 0)), False)
sketch4.addGeometry(Part.ArcOfCircle(Part.Circle(App.Vector(0, 0, 0), App.Vector(0, 0, 1), 22.9), math.radians(78), math.radians(102)), False)
sketch4.addGeometry(Part.LineSegment(App.Vector(4.8, 22.4, 0), App.Vector(4.8, 18.1, 0)), False)
sketch4.addGeometry(Part.LineSegment(App.Vector(4.8, 18.1, 0), App.Vector(0, 15.3, 0)), False)
sketch4.addGeometry(Part.LineSegment(App.Vector(0, 15.3, 0), App.Vector(-4.8, 18.1, 0)), False)
sketch4.addGeometry(Part.LineSegment(App.Vector(-1.4, 7.7, 0), App.Vector(-3.7, 6.3, 0)), False)
sketch4.addGeometry(Part.LineSegment(App.Vector(-3.7, 6.3, 0), App.Vector(-8.6, 6.3, 0)), False)
sketch4.addGeometry(Part.LineSegment(App.Vector(-8.6, 6.3, 0), App.Vector(-10.9, 7.7, 0)), False)
sketch4.addGeometry(Part.LineSegment(App.Vector(-10.9, 7.7, 0), App.Vector(-10.9, 13.2, 0)), False)
sketch4.addGeometry(Part.LineSegment(App.Vector(-10.9, 13.2, 0), App.Vector(-6.2, 15.9, 0)), False)
sketch4.addGeometry(Part.LineSegment(App.Vector(-6.2, 15.9, 0), App.Vector(-1.4, 13.2, 0)), False)
sketch4.addGeometry(Part.LineSegment(App.Vector(-1.4, 13.2, 0), App.Vector(-1.4, 7.7, 0)), False)
sketch4.addGeometry(Part.LineSegment(App.Vector(-12.2, 15.3, 0), App.Vector(-15.2, 17.1, 0)), False)
sketch4.addGeometry(Part.ArcOfCircle(Part.Circle(App.Vector(0, 0, 0), App.Vector(0, 0, 1), 22.9), math.radians(109), math.radians(132)), False)
sketch4.addGeometry(Part.LineSegment(App.Vector(-7.4, 21.6, 0), App.Vector(-7.4, 18.1, 0)), False)
sketch4.addGeometry(Part.LineSegment(App.Vector(-7.4, 18.1, 0), App.Vector(-12.2, 15.3, 0)), False)
sketch4.addGeometry(Part.LineSegment(App.Vector(-13.6, 7.7, 0), App.Vector(-15.9, 6.3, 0)), False)
sketch4.addGeometry(Part.LineSegment(App.Vector(-15.9, 6.3, 0), App.Vector(-20.8, 6.3, 0)), False)
sketch4.addGeometry(Part.LineSegment(App.Vector(-20.8, 6.3, 0), App.Vector(-21.8, 6.9, 0)), False)
sketch4.addGeometry(Part.ArcOfCircle(Part.Circle(App.Vector(0, 0, 0), App.Vector(0, 0, 1), 22.9), math.radians(138), math.radians(162)), False)
sketch4.addGeometry(Part.LineSegment(App.Vector(-17.1, 15.2, 0), App.Vector(-13.6, 13.2, 0)), False)
sketch4.addGeometry(Part.LineSegment(App.Vector(-13.6, 13.2, 0), App.Vector(-13.6, 7.7, 0)), False)
sketch4.addConstraint(Sketcher.Constraint("Coincident", 0, 2, 1, 1))
sketch4.addConstraint(Sketcher.Constraint("Coincident", 1, 2, 2, 1))
sketch4.addConstraint(Sketcher.Constraint("Coincident", 2, 2, 3, 1))
sketch4.addConstraint(Sketcher.Constraint("Coincident", 3, 2, 4, 2))
sketch4.addConstraint(Sketcher.Constraint("Coincident", 4, 1, 5, 1))
sketch4.addConstraint(Sketcher.Constraint("Coincident", 5, 2, 0, 1))
sketch4.addConstraint(Sketcher.Constraint("Coincident", 6, 1, 7, 1))
sketch4.addConstraint(Sketcher.Constraint("Coincident", 7, 2, 8, 1))
sketch4.addConstraint(Sketcher.Constraint("Coincident", 8, 2, 9, 1))
sketch4.addConstraint(Sketcher.Constraint("Coincident", 9, 2, 6, 2))
sketch4.addConstraint(Sketcher.Constraint("Coincident", 10, 2, 11, 1))
sketch4.addConstraint(Sketcher.Constraint("Coincident", 11, 2, 12, 1))
sketch4.addConstraint(Sketcher.Constraint("Coincident", 12, 2, 13, 1))
sketch4.addConstraint(Sketcher.Constraint("Coincident", 13, 2, 14, 1))
sketch4.addConstraint(Sketcher.Constraint("Coincident", 14, 2, 15, 1))
sketch4.addConstraint(Sketcher.Constraint("Coincident", 15, 2, 16, 1))
sketch4.addConstraint(Sketcher.Constraint("Coincident", 16, 2, 10, 1))
sketch4.addConstraint(Sketcher.Constraint("Coincident", 17, 1, 18, 1))
sketch4.addConstraint(Sketcher.Constraint("Coincident", 18, 2, 19, 1))
sketch4.addConstraint(Sketcher.Constraint("Coincident", 19, 2, 20, 1))
sketch4.addConstraint(Sketcher.Constraint("Coincident", 20, 2, 21, 1))
sketch4.addConstraint(Sketcher.Constraint("Coincident", 21, 2, 17, 2))
sketch4.addConstraint(Sketcher.Constraint("Coincident", 22, 2, 23, 1))
sketch4.addConstraint(Sketcher.Constraint("Coincident", 23, 2, 24, 1))
sketch4.addConstraint(Sketcher.Constraint("Coincident", 24, 2, 25, 1))
sketch4.addConstraint(Sketcher.Constraint("Coincident", 25, 2, 26, 1))
sketch4.addConstraint(Sketcher.Constraint("Coincident", 26, 2, 27, 1))
sketch4.addConstraint(Sketcher.Constraint("Coincident", 27, 2, 28, 1))
sketch4.addConstraint(Sketcher.Constraint("Coincident", 28, 2, 22, 1))
sketch4.addConstraint(Sketcher.Constraint("Coincident", 29, 2, 30, 2))
sketch4.addConstraint(Sketcher.Constraint("Coincident", 30, 1, 31, 1))
sketch4.addConstraint(Sketcher.Constraint("Coincident", 31, 2, 32, 1))
sketch4.addConstraint(Sketcher.Constraint("Coincident", 32, 2, 29, 1))
sketch4.addConstraint(Sketcher.Constraint("Coincident", 33, 2, 34, 1))
sketch4.addConstraint(Sketcher.Constraint("Coincident", 34, 2, 35, 1))
sketch4.addConstraint(Sketcher.Constraint("Coincident", 35, 2, 36, 2))
sketch4.addConstraint(Sketcher.Constraint("Coincident", 36, 1, 37, 1))
sketch4.addConstraint(Sketcher.Constraint("Coincident", 37, 2, 38, 1))
sketch4.addConstraint(Sketcher.Constraint("Coincident", 38, 2, 33, 1))
sketch4.addConstraint(Sketcher.Constraint("Coincident", 39, 2, 40, 1))
sketch4.addConstraint(Sketcher.Constraint("Coincident", 40, 2, 41, 1))
sketch4.addConstraint(Sketcher.Constraint("Coincident", 41, 2, 42, 1))
sketch4.addConstraint(Sketcher.Constraint("Coincident", 42, 2, 43, 2))
sketch4.addConstraint(Sketcher.Constraint("Coincident", 43, 1, 44, 1))
sketch4.addConstraint(Sketcher.Constraint("Coincident", 44, 2, 39, 1))
sketch4.addConstraint(Sketcher.Constraint("Coincident", 45, 1, 46, 1))
sketch4.addConstraint(Sketcher.Constraint("Coincident", 46, 2, 47, 1))
sketch4.addConstraint(Sketcher.Constraint("Coincident", 47, 2, 48, 1))
sketch4.addConstraint(Sketcher.Constraint("Coincident", 48, 2, 45, 2))
sketch4.addConstraint(Sketcher.Constraint("Coincident", 49, 2, 50, 1))
sketch4.addConstraint(Sketcher.Constraint("Coincident", 50, 2, 51, 1))
sketch4.addConstraint(Sketcher.Constraint("Coincident", 51, 2, 52, 1))
sketch4.addConstraint(Sketcher.Constraint("Coincident", 52, 2, 53, 1))
sketch4.addConstraint(Sketcher.Constraint("Coincident", 53, 2, 54, 1))
sketch4.addConstraint(Sketcher.Constraint("Coincident", 54, 2, 55, 1))
sketch4.addConstraint(Sketcher.Constraint("Coincident", 55, 2, 49, 1))
sketch4.addConstraint(Sketcher.Constraint("Coincident", 56, 2, 57, 2))
sketch4.addConstraint(Sketcher.Constraint("Coincident", 57, 1, 58, 1))
sketch4.addConstraint(Sketcher.Constraint("Coincident", 58, 2, 59, 1))
sketch4.addConstraint(Sketcher.Constraint("Coincident", 59, 2, 60, 1))
sketch4.addConstraint(Sketcher.Constraint("Coincident", 60, 2, 56, 1))
sketch4.addConstraint(Sketcher.Constraint("Coincident", 61, 2, 62, 1))
sketch4.addConstraint(Sketcher.Constraint("Coincident", 62, 2, 63, 1))
sketch4.addConstraint(Sketcher.Constraint("Coincident", 63, 2, 64, 1))
sketch4.addConstraint(Sketcher.Constraint("Coincident", 64, 2, 65, 1))
sketch4.addConstraint(Sketcher.Constraint("Coincident", 65, 2, 66, 1))
sketch4.addConstraint(Sketcher.Constraint("Coincident", 66, 2, 67, 1))
sketch4.addConstraint(Sketcher.Constraint("Coincident", 67, 2, 61, 1))
sketch4.addConstraint(Sketcher.Constraint("Coincident", 68, 2, 69, 2))
sketch4.addConstraint(Sketcher.Constraint("Coincident", 69, 1, 70, 1))
sketch4.addConstraint(Sketcher.Constraint("Coincident", 70, 2, 71, 1))
sketch4.addConstraint(Sketcher.Constraint("Coincident", 71, 2, 68, 1))
sketch4.addConstraint(Sketcher.Constraint("Coincident", 72, 2, 73, 1))
sketch4.addConstraint(Sketcher.Constraint("Coincident", 73, 2, 74, 1))
sketch4.addConstraint(Sketcher.Constraint("Coincident", 74, 2, 75, 2))
sketch4.addConstraint(Sketcher.Constraint("Coincident", 75, 1, 76, 1))
sketch4.addConstraint(Sketcher.Constraint("Coincident", 76, 2, 77, 1))
sketch4.addConstraint(Sketcher.Constraint("Coincident", 77, 2, 72, 1))
sketch4.addConstraint(Sketcher.Constraint("Horizontal", 0))
sketch4.addConstraint(Sketcher.Constraint("Vertical", 2))
sketch4.addConstraint(Sketcher.Constraint("Vertical", 9))
sketch4.addConstraint(Sketcher.Constraint("Horizontal", 10))
sketch4.addConstraint(Sketcher.Constraint("Vertical", 12))
sketch4.addConstraint(Sketcher.Constraint("Vertical", 15))
sketch4.addConstraint(Sketcher.Constraint("Vertical", 18))
sketch4.addConstraint(Sketcher.Constraint("Vertical", 21))
sketch4.addConstraint(Sketcher.Constraint("Horizontal", 23))
sketch4.addConstraint(Sketcher.Constraint("Vertical", 25))
sketch4.addConstraint(Sketcher.Constraint("Vertical", 28))
sketch4.addConstraint(Sketcher.Constraint("Vertical", 31))
sketch4.addConstraint(Sketcher.Constraint("Horizontal", 34))
sketch4.addConstraint(Sketcher.Constraint("Vertical", 38))
sketch4.addConstraint(Sketcher.Constraint("Horizontal", 39))
sketch4.addConstraint(Sketcher.Constraint("Vertical", 41))
sketch4.addConstraint(Sketcher.Constraint("Vertical", 48))
sketch4.addConstraint(Sketcher.Constraint("Horizontal", 49))
sketch4.addConstraint(Sketcher.Constraint("Vertical", 51))
sketch4.addConstraint(Sketcher.Constraint("Vertical", 54))
sketch4.addConstraint(Sketcher.Constraint("Vertical", 56))
sketch4.addConstraint(Sketcher.Constraint("Vertical", 58))
sketch4.addConstraint(Sketcher.Constraint("Horizontal", 62))
sketch4.addConstraint(Sketcher.Constraint("Vertical", 64))
sketch4.addConstraint(Sketcher.Constraint("Vertical", 67))
sketch4.addConstraint(Sketcher.Constraint("Vertical", 70))
sketch4.addConstraint(Sketcher.Constraint("Horizontal", 73))
sketch4.addConstraint(Sketcher.Constraint("Vertical", 77))
sketch4.addConstraint(Sketcher.Constraint("Coincident", 4, 3, -1, 1))
sketch4.addConstraint(Sketcher.Constraint("Coincident", 6, 3, -1, 1))
sketch4.addConstraint(Sketcher.Constraint("Coincident", 17, 3, -1, 1))
sketch4.addConstraint(Sketcher.Constraint("Coincident", 30, 3, -1, 1))
sketch4.addConstraint(Sketcher.Constraint("Coincident", 36, 3, -1, 1))
sketch4.addConstraint(Sketcher.Constraint("Coincident", 43, 3, -1, 1))
sketch4.addConstraint(Sketcher.Constraint("Coincident", 45, 3, -1, 1))
sketch4.addConstraint(Sketcher.Constraint("Coincident", 57, 3, -1, 1))
sketch4.addConstraint(Sketcher.Constraint("Coincident", 69, 3, -1, 1))
sketch4.addConstraint(Sketcher.Constraint("Coincident", 75, 3, -1, 1))
sketch4.addConstraint(Sketcher.Constraint("Equal", 4, 6))
sketch4.addConstraint(Sketcher.Constraint("Equal", 6, 17))
sketch4.addConstraint(Sketcher.Constraint("Equal", 17, 30))
sketch4.addConstraint(Sketcher.Constraint("Equal", 30, 36))
sketch4.addConstraint(Sketcher.Constraint("Equal", 36, 43))
sketch4.addConstraint(Sketcher.Constraint("Equal", 43, 45))
sketch4.addConstraint(Sketcher.Constraint("Equal", 45, 57))
sketch4.addConstraint(Sketcher.Constraint("Equal", 57, 69))
sketch4.addConstraint(Sketcher.Constraint("Equal", 69, 75))
sketch4.addConstraint(Sketcher.Constraint("Symmetric", 7, 2, 46, 2, -1, 1))
sketch4.addConstraint(Sketcher.Constraint("Symmetric", 8, 2, 47, 2, -1, 1))
sketch4.addConstraint(Sketcher.Constraint("Symmetric", 18, 2, 58, 2, -1, 1))
sketch4.addConstraint(Sketcher.Constraint("Symmetric", 19, 2, 59, 2, -1, 1))
sketch4.addConstraint(Sketcher.Constraint("Symmetric", 20, 2, 60, 2, -1, 1))
sketch4.addConstraint(Sketcher.Constraint("Symmetric", 31, 2, 70, 2, -1, 1))
sketch4.addConstraint(Sketcher.Constraint("Symmetric", 32, 2, 71, 2, -1, 1))
sketch4.addConstraint(Sketcher.Constraint("Symmetric", 18, 2, 20, 2, -2))
sketch4.addConstraint(Sketcher.Constraint("Symmetric", 8, 2, 31, 2, -2))
sketch4.addConstraint(Sketcher.Constraint("Symmetric", 7, 2, 32, 2, -2))
sketch4.addConstraint(Sketcher.Constraint("PointOnObject", 19, 2, -2))
sketch4.addConstraint(Sketcher.Constraint("Parallel", 3, 5))
sketch4.addConstraint(Sketcher.Constraint("Parallel", 5, 7))
sketch4.addConstraint(Sketcher.Constraint("Parallel", 1, 8))
sketch4.addConstraint(Sketcher.Constraint("Parallel", 8, 11))
sketch4.addConstraint(Sketcher.Constraint("Parallel", 7, 13))
sketch4.addConstraint(Sketcher.Constraint("Parallel", 11, 14))
sketch4.addConstraint(Sketcher.Constraint("Parallel", 13, 16))
sketch4.addConstraint(Sketcher.Constraint("Parallel", 16, 19))
sketch4.addConstraint(Sketcher.Constraint("Parallel", 14, 20))
sketch4.addConstraint(Sketcher.Constraint("Parallel", 19, 22))
sketch4.addConstraint(Sketcher.Constraint("Parallel", 20, 24))
sketch4.addConstraint(Sketcher.Constraint("Parallel", 22, 26))
sketch4.addConstraint(Sketcher.Constraint("Parallel", 24, 27))
sketch4.addConstraint(Sketcher.Constraint("Parallel", 27, 29))
sketch4.addConstraint(Sketcher.Constraint("Parallel", 32, 33))
sketch4.addConstraint(Sketcher.Constraint("Parallel", 29, 35))
sketch4.addConstraint(Sketcher.Constraint("Parallel", 35, 37))
sketch4.addConstraint(Sketcher.Constraint("Parallel", 37, 40))
sketch4.addConstraint(Sketcher.Constraint("Parallel", 33, 42))
sketch4.addConstraint(Sketcher.Constraint("Parallel", 42, 44))
sketch4.addConstraint(Sketcher.Constraint("Parallel", 44, 46))
sketch4.addConstraint(Sketcher.Constraint("Parallel", 47, 50))
sketch4.addConstraint(Sketcher.Constraint("Parallel", 46, 52))
sketch4.addConstraint(Sketcher.Constraint("Parallel", 50, 53))
sketch4.addConstraint(Sketcher.Constraint("Parallel", 52, 55))
sketch4.addConstraint(Sketcher.Constraint("Parallel", 59, 61))
sketch4.addConstraint(Sketcher.Constraint("Parallel", 60, 63))
sketch4.addConstraint(Sketcher.Constraint("Parallel", 61, 65))
sketch4.addConstraint(Sketcher.Constraint("Parallel", 63, 66))
sketch4.addConstraint(Sketcher.Constraint("Parallel", 66, 68))
sketch4.addConstraint(Sketcher.Constraint("Parallel", 71, 72))
sketch4.addConstraint(Sketcher.Constraint("Parallel", 68, 74))
sketch4.addConstraint(Sketcher.Constraint("Parallel", 74, 76))
sketch4.addConstraint(Sketcher.Constraint("Horizontal", 5, 2, 10, 2))
sketch4.addConstraint(Sketcher.Constraint("Horizontal", 1, 2, 11, 2))
sketch4.addConstraint(Sketcher.Constraint("Horizontal", 2, 2, 12, 2))
sketch4.addConstraint(Sketcher.Constraint("Horizontal", 12, 2, 14, 2))
sketch4.addConstraint(Sketcher.Constraint("Horizontal", 11, 2, 15, 2))
sketch4.addConstraint(Sketcher.Constraint("Horizontal", 8, 2, 18, 2))
sketch4.addConstraint(Sketcher.Constraint("Horizontal", 7, 2, 19, 2))
sketch4.addConstraint(Sketcher.Constraint("Horizontal", 16, 2, 22, 2))
sketch4.addConstraint(Sketcher.Constraint("Horizontal", 15, 2, 24, 2))
sketch4.addConstraint(Sketcher.Constraint("Horizontal", 14, 2, 25, 2))
sketch4.addConstraint(Sketcher.Constraint("Horizontal", 13, 2, 26, 2))
sketch4.addConstraint(Sketcher.Constraint("Horizontal", 25, 2, 27, 2))
sketch4.addConstraint(Sketcher.Constraint("Horizontal", 24, 2, 28, 2))
sketch4.addConstraint(Sketcher.Constraint("Horizontal", 23, 2, 33, 2))
sketch4.addConstraint(Sketcher.Constraint("Horizontal", 27, 2, 37, 2))
sketch4.addConstraint(Sketcher.Constraint("Horizontal", 28, 2, 38, 2))
sketch4.addConstraint(Sketcher.Constraint("Horizontal", 44, 2, 49, 2))
sketch4.addConstraint(Sketcher.Constraint("Horizontal", 40, 2, 50, 2))
sketch4.addConstraint(Sketcher.Constraint("Horizontal", 41, 2, 51, 2))
sketch4.addConstraint(Sketcher.Constraint("Horizontal", 51, 2, 53, 2))
sketch4.addConstraint(Sketcher.Constraint("Horizontal", 50, 2, 54, 2))
sketch4.addConstraint(Sketcher.Constraint("Horizontal", 55, 2, 61, 2))
sketch4.addConstraint(Sketcher.Constraint("Horizontal", 54, 2, 63, 2))
sketch4.addConstraint(Sketcher.Constraint("Horizontal", 53, 2, 64, 2))
sketch4.addConstraint(Sketcher.Constraint("Horizontal", 52, 2, 65, 2))
sketch4.addConstraint(Sketcher.Constraint("Horizontal", 64, 2, 66, 2))
sketch4.addConstraint(Sketcher.Constraint("Horizontal", 63, 2, 67, 2))
sketch4.addConstraint(Sketcher.Constraint("Horizontal", 62, 2, 72, 2))
sketch4.addConstraint(Sketcher.Constraint("Horizontal", 66, 2, 76, 2))
sketch4.addConstraint(Sketcher.Constraint("Horizontal", 67, 2, 77, 2))
sketch4.addConstraint(Sketcher.Constraint("Vertical", 38, 2, 40, 2))
sketch4.addConstraint(Sketcher.Constraint("Vertical", 28, 2, 50, 2))
sketch4.addConstraint(Sketcher.Constraint("Vertical", 26, 2, 52, 2))
sketch4.addConstraint(Sketcher.Constraint("Vertical", 15, 2, 63, 2))
sketch4.addConstraint(Sketcher.Constraint("Vertical", 2, 2, 76, 2))
sketch4.addConstraint(Sketcher.Constraint("Equal", 0, 10))
sketch4.addConstraint(Sketcher.Constraint("Equal", 23, 34))
sketch4.addConstraint(Sketcher.Constraint("Equal", 39, 49))
sketch4.addConstraint(Sketcher.Constraint("Equal", 62, 73))
sketch4.addConstraint(Sketcher.Constraint("Equal", 38, 41))
sketch4.addConstraint(Sketcher.Constraint("Equal", 8, 13))
sketch4.addConstraint(Sketcher.Constraint("Radius", 4, Q("0.9 in")))
sketch4.addConstraint(Sketcher.Constraint("Angle", 1, Q("-30 deg")))
sketch4.addConstraint(Sketcher.Constraint("DistanceY", 0, 2, -1, 1, Q("0.25 in")))
sketch4.addConstraint(Sketcher.Constraint("DistanceX", 7, 2, -1, 1, Q("0.48 in")))
sketch4.addConstraint(Sketcher.Constraint("DistanceX", 14, 2, -1, 1, Q("0.43 in")))
sketch4.addConstraint(Sketcher.Constraint("DistanceX", -1, 1, 27, 2, Q("0.05 in")))
sketch4.addConstraint(Sketcher.Constraint("DistanceX", -1, 1, 37, 2, Q("0.53 in")))
sketch4.addConstraint(Sketcher.Constraint("DistanceY", -1, 1, 39, 2, Q("0.25 in")))
sketch4.addConstraint(Sketcher.Constraint("DistanceX", 1, 2, -1, 1, Q("0.535 in")))
sketch4.addConstraint(Sketcher.Constraint("DistanceX", 11, 2, -1, 1, Q("0.055 in")))
sketch4.addConstraint(Sketcher.Constraint("DistanceY", 2, 2, 2, 1, Q("5.499261 mm")))
sketch4.addConstraint(Sketcher.Constraint("DistanceY", -1, 1, 75, 1, Q("15.207 mm")))
sketch4.addConstraint(Sketcher.Constraint("Distance", 35, Q("1.16909 mm")))
sketch4.addConstraint(Sketcher.Constraint("DistanceY", 9, 2, 9, 1, Q("3.540653 mm")))
pocket2 = body.newObject("PartDesign::Pocket", "Pocket001")
pocket2.Profile = sketch4
pocket2.Type = "ThroughAll"
pocket2.Midplane = True

doc.recompute()
